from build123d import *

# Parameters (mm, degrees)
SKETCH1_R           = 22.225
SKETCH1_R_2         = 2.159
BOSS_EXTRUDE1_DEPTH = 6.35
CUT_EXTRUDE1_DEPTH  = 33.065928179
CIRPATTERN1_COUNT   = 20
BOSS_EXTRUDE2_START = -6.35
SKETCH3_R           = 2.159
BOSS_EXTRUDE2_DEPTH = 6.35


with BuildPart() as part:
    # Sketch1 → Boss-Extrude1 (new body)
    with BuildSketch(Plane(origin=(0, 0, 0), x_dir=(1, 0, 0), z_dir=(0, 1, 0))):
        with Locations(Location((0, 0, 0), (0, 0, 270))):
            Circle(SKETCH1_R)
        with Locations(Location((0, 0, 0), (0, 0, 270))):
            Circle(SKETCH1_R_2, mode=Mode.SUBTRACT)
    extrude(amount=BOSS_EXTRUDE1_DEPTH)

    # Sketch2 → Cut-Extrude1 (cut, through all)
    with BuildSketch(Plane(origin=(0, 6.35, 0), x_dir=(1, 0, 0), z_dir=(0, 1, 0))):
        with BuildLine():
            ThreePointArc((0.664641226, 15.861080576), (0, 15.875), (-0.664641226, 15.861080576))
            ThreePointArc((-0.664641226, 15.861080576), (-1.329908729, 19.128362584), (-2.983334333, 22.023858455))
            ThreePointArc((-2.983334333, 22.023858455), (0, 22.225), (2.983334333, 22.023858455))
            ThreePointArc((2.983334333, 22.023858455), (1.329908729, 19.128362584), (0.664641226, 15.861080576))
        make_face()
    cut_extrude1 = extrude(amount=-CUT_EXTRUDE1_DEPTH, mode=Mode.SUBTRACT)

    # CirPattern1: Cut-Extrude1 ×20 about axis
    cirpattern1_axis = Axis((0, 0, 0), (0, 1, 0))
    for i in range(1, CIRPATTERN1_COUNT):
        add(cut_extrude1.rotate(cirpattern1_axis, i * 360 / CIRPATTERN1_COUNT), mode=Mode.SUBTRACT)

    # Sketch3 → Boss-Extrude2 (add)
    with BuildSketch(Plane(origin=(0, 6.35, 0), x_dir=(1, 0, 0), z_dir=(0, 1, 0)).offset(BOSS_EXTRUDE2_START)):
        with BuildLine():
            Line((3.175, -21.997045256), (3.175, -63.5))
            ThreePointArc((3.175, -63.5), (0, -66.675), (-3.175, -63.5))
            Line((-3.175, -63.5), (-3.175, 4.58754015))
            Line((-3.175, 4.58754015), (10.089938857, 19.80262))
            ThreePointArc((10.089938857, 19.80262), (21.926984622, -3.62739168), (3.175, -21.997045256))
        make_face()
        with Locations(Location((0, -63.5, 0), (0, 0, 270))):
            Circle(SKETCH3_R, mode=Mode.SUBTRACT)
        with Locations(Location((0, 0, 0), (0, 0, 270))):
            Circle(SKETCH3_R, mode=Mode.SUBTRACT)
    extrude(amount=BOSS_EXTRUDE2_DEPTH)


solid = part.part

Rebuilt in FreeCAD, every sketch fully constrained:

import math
import FreeCAD as App
import Part
import Sketcher
Q = App.Units.Quantity

doc = App.newDocument("Part")
params = doc.addObject("Spreadsheet::Sheet", "Params")
for row, (alias, value) in enumerate([
    ("sketch1_diameter", "1.75 in"),
    ("sketch1_diameter2", "0.17 in"),
    ("pad1_length", "0.25 in"),
    ("sketch2_radius", "0.625 in"),
    ("sketch2_radius2", "0.875 in"),
    ("sketch3_diameter", "0.17 in"),
    ("sketch3_radius", "0.875 in"),
    ("sketch3_radius2", "0.125 in"),
    ("pad2_length", "0.25 in"),
], start=1):
    params.set(f"A{row}", alias)
    params.set(f"B{row}", "=" + value)
    params.setAlias(f"B{row}", alias)

body = doc.addObject("PartDesign::Body", "Body")

# Sketch on XZ plane
sketch1 = body.newObject("Sketcher::SketchObject", "Sketch")
sketch1.AttachmentSupport = (doc.getObject("XZ_Plane"), [""])
sketch1.MapMode = "FlatFace"
sketch1.addGeometry(Part.Circle(App.Vector(0, 0, 0), App.Vector(0, 0, 1), 22.2), False)
sketch1.addGeometry(Part.Circle(App.Vector(0, 0, 0), App.Vector(0, 0, 1), 2.2), False)
sketch1.addConstraint(Sketcher.Constraint("Coincident", 0, 3, -1, 1))
sketch1.addConstraint(Sketcher.Constraint("Coincident", 1, 3, -1, 1))
sketch1.addConstraint(Sketcher.Constraint("Diameter", 0, Q("1.75 in")))
sketch1.addConstraint(Sketcher.Constraint("Diameter", 1, Q("0.17 in")))
sketch1.setExpression("Constraints[2]", "Params.sketch1_diameter")
sketch1.setExpression("Constraints[3]", "Params.sketch1_diameter2")
pad1 = body.newObject("PartDesign::Pad", "Pad")
pad1.Profile = sketch1
pad1.setExpression("Length", "Params.pad1_length")
pad1.Reversed = True

# Sketch on XZ plane
sketch2 = body.newObject("Sketcher::SketchObject", "Sketch001")
sketch2.AttachmentSupport = (doc.getObject("XZ_Plane"), [""])
sketch2.MapMode = "FlatFace"
sketch2.AttachmentOffset = App.Placement(App.Vector(0, 0, -0.25 * 25.4), App.Rotation())
sketch2.addGeometry(Part.ArcOfCircle(Part.Circle(App.Vector(0, 0, 0), App.Vector(0, 0, 1), 15.9), math.radians(-92.4), math.radians(-87.6)), False)
sketch2.addGeometry(Part.ArcOfCircle(Part.Circle(App.Vector(11.2, -15.4, 0), App.Vector(0, 0, 1), 10.5), math.radians(-178), math.radians(-141)), False)
sketch2.addGeometry(Part.ArcOfCircle(Part.Circle(App.Vector(0, 0, 0), App.Vector(0, 0, 1), 22.2), math.radians(-97.71), math.radians(-82.29)), False)
sketch2.addGeometry(Part.ArcOfCircle(Part.Circle(App.Vector(-11.2, -15.4, 0), App.Vector(0, 0, 1), 10.5), math.radians(-39), math.radians(-2)), False)
sketch2.addConstraint(Sketcher.Constraint("Coincident", 0, 2, 1, 1))
sketch2.addConstraint(Sketcher.Constraint("Coincident", 1, 2, 2, 2))
sketch2.addConstraint(Sketcher.Constraint("Coincident", 2, 1, 3, 1))
sketch2.addConstraint(Sketcher.Constraint("Coincident", 3, 2, 0, 1))
sketch2.addConstraint(Sketcher.Constraint("Coincident", 0, 3, -1, 1))
sketch2.addConstraint(Sketcher.Constraint("Coincident", 2, 3, -1, 1))
sketch2.addConstraint(Sketcher.Constraint("Equal", 1, 3))
sketch2.addConstraint(Sketcher.Constraint("Symmetric", 1, 3, 3, 3, -2))
sketch2.addConstraint(Sketcher.Constraint("Radius", 0, Q("0.625 in")))
sketch2.addConstraint(Sketcher.Constraint("Radius", 2, Q("0.875 in")))
sketch2.addConstraint(Sketcher.Constraint("Radius", 1, Q("10.530284 mm")))
sketch2.addConstraint(Sketcher.Constraint("DistanceX", -1, 1, 1, 3, Q("11.185692 mm")))
sketch2.addConstraint(Sketcher.Constraint("DistanceY", 1, 2, -1, 1, Q("22.023858 mm")))
sketch2.setExpression("Constraints[8]", "Params.sketch2_radius")
sketch2.setExpression("Constraints[9]", "Params.sketch2_radius2")
pocket1 = body.newObject("PartDesign::Pocket", "Pocket")
pocket1.Profile = sketch2
pocket1.Type = "ThroughAll"
pocket1.Reversed = True
doc.recompute()

polarpattern = body.newObject("PartDesign::PolarPattern", "PolarPattern")
polarpattern.Originals = [pocket1]
polarpattern.Axis = (doc.getObject("Y_Axis"), [""])
polarpattern.Angle = 360
polarpattern.Occurrences = 20
body.Tip = polarpattern

# Sketch on XZ plane
sketch3 = body.newObject("Sketcher::SketchObject", "Sketch002")
sketch3.AttachmentSupport = (doc.getObject("XZ_Plane"), [""])
sketch3.MapMode = "FlatFace"
sketch3.addGeometry(Part.LineSegment(App.Vector(3.2, 63.5, 0), App.Vector(3.2, 22, 0)), False)
sketch3.addGeometry(Part.ArcOfCircle(Part.Circle(App.Vector(0, 0, 0), App.Vector(0, 0, 1), 22.2), math.radians(-63), math.radians(82)), False)
sketch3.addGeometry(Part.LineSegment(App.Vector(10.1, -19.8, 0), App.Vector(-3.2, -4.6, 0)), False)
sketch3.addGeometry(Part.LineSegment(App.Vector(-3.2, -4.6, 0), App.Vector(-3.2, 63.5, 0)), False)
sketch3.addGeometry(Part.ArcOfCircle(Part.Circle(App.Vector(0, 63.5, 0), App.Vector(0, 0, 1), 3.2), math.radians(0), math.radians(180)), False)
sketch3.addGeometry(Part.Circle(App.Vector(0, 63.5, 0), App.Vector(0, 0, 1), 2.2), False)
sketch3.addGeometry(Part.Circle(App.Vector(0, 0, 0), App.Vector(0, 0, 1), 2.2), False)
sketch3.addConstraint(Sketcher.Constraint("Coincident", 0, 2, 1, 2))
sketch3.addConstraint(Sketcher.Constraint("Coincident", 1, 1, 2, 1))
sketch3.addConstraint(Sketcher.Constraint("Coincident", 2, 2, 3, 1))
sketch3.addConstraint(Sketcher.Constraint("Tangent", 3, 2, 4, 2))
sketch3.addConstraint(Sketcher.Constraint("Tangent", 4, 1, 0, 1))
sketch3.addConstraint(Sketcher.Constraint("Vertical", 0))
sketch3.addConstraint(Sketcher.Constraint("Vertical", 3))
sketch3.addConstraint(Sketcher.Constraint("Coincident", 1, 3, -1, 1))
sketch3.addConstraint(Sketcher.Constraint("Coincident", 6, 3, -1, 1))
sketch3.addConstraint(Sketcher.Constraint("Coincident", 5, 3, 4, 3))
sketch3.addConstraint(Sketcher.Constraint("Equal", 5, 6))
sketch3.addConstraint(Sketcher.Constraint("PointOnObject", 4, 3, -2))
sketch3.addConstraint(Sketcher.Constraint("Diameter", 5, Q("0.17 in")))
sketch3.addConstraint(Sketcher.Constraint("Radius", 1, Q("0.875 in")))
sketch3.addConstraint(Sketcher.Constraint("Radius", 4, Q("0.125 in")))
sketch3.addConstraint(Sketcher.Constraint("DistanceY", -1, 1, 4, 3, Q("2.5 in")))
sketch3.addConstraint(Sketcher.Constraint("DistanceY", 3, 1, 3, 2, Q("68.08754 mm")))
sketch3.addConstraint(Sketcher.Constraint("Distance", 2, Q("20.185571 mm")))
sketch3.setExpression("Constraints[12]", "Params.sketch3_diameter")
sketch3.setExpression("Constraints[13]", "Params.sketch3_radius")
sketch3.setExpression("Constraints[14]", "Params.sketch3_radius2")
pad2 = body.newObject("PartDesign::Pad", "Pad001")
pad2.Profile = sketch3
pad2.setExpression("Length", "Params.pad2_length")
pad2.Reversed = True

doc.recompute()
